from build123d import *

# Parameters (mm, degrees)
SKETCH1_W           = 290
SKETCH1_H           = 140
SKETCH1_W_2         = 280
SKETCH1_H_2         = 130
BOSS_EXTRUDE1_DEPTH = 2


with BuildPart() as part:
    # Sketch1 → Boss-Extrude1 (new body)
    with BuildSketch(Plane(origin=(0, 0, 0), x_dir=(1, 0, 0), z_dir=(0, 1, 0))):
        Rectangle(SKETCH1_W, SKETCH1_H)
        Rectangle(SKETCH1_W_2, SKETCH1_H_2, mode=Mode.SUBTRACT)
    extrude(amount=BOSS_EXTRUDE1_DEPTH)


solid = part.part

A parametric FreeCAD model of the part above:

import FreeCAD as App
import Part
import Sketcher

V = App.Vector


def add_polygon(sketch, points):
    """Adds a closed chain of lines whose ends are joined by coincident constraints."""
    first, n = sketch.GeometryCount, len(points)
    for a, b in zip(points, points[1:] + points[:1]):
        sketch.addGeometry(Part.LineSegment(App.Vector(*a, 0), App.Vector(*b, 0)), False)
    for i in range(n):
        sketch.addConstraint(Sketcher.Constraint("Coincident", first + i, 2, first + (i + 1) % n, 1))

doc = App.newDocument("Part")
body = doc.addObject("PartDesign::Body", "Body")

sketch1 = body.newObject("Sketcher::SketchObject", "Sketch")
sketch1.AttachmentSupport = (doc.getObject("XZ_Plane"), [""])
sketch1.MapMode = "FlatFace"
add_polygon(sketch1, [(-145, -70), (-145, 70), (145, 70), (145, -70)])
add_polygon(sketch1, [(140, 65), (-140, 65), (-140, -65), (140, -65)])
sketch1.addConstraint(Sketcher.Constraint("Vertical", 0))
sketch1.addConstraint(Sketcher.Constraint("Horizontal", 1))
sketch1.addConstraint(Sketcher.Constraint("Vertical", 2))
sketch1.addConstraint(Sketcher.Constraint("Horizontal", 3))
sketch1.addConstraint(Sketcher.Constraint("Horizontal", 4))
sketch1.addConstraint(Sketcher.Constraint("Vertical", 5))
sketch1.addConstraint(Sketcher.Constraint("Horizontal", 6))
sketch1.addConstraint(Sketcher.Constraint("Vertical", 7))
sketch1.addConstraint(Sketcher.Constraint("Symmetric", 0, 2, 2, 2, -1, 1))
sketch1.addConstraint(Sketcher.Constraint("Symmetric", 4, 2, 6, 2, -1, 1))
sketch1.addConstraint(Sketcher.Constraint("DistanceX", 1, 1, 1, 2, 290.0))
sketch1.addConstraint(Sketcher.Constraint("DistanceX", 4, 2, 4, 1, 280.0))
sketch1.addConstraint(Sketcher.Constraint("DistanceY", 0, 1, 0, 2, 140.0))
sketch1.addConstraint(Sketcher.Constraint("DistanceY", 5, 2, 5, 1, 130.0))
pad1 = body.newObject("PartDesign::Pad", "Pad")
pad1.Profile = sketch1
pad1.Length = 2
pad1.Reversed = True

doc.recompute()
